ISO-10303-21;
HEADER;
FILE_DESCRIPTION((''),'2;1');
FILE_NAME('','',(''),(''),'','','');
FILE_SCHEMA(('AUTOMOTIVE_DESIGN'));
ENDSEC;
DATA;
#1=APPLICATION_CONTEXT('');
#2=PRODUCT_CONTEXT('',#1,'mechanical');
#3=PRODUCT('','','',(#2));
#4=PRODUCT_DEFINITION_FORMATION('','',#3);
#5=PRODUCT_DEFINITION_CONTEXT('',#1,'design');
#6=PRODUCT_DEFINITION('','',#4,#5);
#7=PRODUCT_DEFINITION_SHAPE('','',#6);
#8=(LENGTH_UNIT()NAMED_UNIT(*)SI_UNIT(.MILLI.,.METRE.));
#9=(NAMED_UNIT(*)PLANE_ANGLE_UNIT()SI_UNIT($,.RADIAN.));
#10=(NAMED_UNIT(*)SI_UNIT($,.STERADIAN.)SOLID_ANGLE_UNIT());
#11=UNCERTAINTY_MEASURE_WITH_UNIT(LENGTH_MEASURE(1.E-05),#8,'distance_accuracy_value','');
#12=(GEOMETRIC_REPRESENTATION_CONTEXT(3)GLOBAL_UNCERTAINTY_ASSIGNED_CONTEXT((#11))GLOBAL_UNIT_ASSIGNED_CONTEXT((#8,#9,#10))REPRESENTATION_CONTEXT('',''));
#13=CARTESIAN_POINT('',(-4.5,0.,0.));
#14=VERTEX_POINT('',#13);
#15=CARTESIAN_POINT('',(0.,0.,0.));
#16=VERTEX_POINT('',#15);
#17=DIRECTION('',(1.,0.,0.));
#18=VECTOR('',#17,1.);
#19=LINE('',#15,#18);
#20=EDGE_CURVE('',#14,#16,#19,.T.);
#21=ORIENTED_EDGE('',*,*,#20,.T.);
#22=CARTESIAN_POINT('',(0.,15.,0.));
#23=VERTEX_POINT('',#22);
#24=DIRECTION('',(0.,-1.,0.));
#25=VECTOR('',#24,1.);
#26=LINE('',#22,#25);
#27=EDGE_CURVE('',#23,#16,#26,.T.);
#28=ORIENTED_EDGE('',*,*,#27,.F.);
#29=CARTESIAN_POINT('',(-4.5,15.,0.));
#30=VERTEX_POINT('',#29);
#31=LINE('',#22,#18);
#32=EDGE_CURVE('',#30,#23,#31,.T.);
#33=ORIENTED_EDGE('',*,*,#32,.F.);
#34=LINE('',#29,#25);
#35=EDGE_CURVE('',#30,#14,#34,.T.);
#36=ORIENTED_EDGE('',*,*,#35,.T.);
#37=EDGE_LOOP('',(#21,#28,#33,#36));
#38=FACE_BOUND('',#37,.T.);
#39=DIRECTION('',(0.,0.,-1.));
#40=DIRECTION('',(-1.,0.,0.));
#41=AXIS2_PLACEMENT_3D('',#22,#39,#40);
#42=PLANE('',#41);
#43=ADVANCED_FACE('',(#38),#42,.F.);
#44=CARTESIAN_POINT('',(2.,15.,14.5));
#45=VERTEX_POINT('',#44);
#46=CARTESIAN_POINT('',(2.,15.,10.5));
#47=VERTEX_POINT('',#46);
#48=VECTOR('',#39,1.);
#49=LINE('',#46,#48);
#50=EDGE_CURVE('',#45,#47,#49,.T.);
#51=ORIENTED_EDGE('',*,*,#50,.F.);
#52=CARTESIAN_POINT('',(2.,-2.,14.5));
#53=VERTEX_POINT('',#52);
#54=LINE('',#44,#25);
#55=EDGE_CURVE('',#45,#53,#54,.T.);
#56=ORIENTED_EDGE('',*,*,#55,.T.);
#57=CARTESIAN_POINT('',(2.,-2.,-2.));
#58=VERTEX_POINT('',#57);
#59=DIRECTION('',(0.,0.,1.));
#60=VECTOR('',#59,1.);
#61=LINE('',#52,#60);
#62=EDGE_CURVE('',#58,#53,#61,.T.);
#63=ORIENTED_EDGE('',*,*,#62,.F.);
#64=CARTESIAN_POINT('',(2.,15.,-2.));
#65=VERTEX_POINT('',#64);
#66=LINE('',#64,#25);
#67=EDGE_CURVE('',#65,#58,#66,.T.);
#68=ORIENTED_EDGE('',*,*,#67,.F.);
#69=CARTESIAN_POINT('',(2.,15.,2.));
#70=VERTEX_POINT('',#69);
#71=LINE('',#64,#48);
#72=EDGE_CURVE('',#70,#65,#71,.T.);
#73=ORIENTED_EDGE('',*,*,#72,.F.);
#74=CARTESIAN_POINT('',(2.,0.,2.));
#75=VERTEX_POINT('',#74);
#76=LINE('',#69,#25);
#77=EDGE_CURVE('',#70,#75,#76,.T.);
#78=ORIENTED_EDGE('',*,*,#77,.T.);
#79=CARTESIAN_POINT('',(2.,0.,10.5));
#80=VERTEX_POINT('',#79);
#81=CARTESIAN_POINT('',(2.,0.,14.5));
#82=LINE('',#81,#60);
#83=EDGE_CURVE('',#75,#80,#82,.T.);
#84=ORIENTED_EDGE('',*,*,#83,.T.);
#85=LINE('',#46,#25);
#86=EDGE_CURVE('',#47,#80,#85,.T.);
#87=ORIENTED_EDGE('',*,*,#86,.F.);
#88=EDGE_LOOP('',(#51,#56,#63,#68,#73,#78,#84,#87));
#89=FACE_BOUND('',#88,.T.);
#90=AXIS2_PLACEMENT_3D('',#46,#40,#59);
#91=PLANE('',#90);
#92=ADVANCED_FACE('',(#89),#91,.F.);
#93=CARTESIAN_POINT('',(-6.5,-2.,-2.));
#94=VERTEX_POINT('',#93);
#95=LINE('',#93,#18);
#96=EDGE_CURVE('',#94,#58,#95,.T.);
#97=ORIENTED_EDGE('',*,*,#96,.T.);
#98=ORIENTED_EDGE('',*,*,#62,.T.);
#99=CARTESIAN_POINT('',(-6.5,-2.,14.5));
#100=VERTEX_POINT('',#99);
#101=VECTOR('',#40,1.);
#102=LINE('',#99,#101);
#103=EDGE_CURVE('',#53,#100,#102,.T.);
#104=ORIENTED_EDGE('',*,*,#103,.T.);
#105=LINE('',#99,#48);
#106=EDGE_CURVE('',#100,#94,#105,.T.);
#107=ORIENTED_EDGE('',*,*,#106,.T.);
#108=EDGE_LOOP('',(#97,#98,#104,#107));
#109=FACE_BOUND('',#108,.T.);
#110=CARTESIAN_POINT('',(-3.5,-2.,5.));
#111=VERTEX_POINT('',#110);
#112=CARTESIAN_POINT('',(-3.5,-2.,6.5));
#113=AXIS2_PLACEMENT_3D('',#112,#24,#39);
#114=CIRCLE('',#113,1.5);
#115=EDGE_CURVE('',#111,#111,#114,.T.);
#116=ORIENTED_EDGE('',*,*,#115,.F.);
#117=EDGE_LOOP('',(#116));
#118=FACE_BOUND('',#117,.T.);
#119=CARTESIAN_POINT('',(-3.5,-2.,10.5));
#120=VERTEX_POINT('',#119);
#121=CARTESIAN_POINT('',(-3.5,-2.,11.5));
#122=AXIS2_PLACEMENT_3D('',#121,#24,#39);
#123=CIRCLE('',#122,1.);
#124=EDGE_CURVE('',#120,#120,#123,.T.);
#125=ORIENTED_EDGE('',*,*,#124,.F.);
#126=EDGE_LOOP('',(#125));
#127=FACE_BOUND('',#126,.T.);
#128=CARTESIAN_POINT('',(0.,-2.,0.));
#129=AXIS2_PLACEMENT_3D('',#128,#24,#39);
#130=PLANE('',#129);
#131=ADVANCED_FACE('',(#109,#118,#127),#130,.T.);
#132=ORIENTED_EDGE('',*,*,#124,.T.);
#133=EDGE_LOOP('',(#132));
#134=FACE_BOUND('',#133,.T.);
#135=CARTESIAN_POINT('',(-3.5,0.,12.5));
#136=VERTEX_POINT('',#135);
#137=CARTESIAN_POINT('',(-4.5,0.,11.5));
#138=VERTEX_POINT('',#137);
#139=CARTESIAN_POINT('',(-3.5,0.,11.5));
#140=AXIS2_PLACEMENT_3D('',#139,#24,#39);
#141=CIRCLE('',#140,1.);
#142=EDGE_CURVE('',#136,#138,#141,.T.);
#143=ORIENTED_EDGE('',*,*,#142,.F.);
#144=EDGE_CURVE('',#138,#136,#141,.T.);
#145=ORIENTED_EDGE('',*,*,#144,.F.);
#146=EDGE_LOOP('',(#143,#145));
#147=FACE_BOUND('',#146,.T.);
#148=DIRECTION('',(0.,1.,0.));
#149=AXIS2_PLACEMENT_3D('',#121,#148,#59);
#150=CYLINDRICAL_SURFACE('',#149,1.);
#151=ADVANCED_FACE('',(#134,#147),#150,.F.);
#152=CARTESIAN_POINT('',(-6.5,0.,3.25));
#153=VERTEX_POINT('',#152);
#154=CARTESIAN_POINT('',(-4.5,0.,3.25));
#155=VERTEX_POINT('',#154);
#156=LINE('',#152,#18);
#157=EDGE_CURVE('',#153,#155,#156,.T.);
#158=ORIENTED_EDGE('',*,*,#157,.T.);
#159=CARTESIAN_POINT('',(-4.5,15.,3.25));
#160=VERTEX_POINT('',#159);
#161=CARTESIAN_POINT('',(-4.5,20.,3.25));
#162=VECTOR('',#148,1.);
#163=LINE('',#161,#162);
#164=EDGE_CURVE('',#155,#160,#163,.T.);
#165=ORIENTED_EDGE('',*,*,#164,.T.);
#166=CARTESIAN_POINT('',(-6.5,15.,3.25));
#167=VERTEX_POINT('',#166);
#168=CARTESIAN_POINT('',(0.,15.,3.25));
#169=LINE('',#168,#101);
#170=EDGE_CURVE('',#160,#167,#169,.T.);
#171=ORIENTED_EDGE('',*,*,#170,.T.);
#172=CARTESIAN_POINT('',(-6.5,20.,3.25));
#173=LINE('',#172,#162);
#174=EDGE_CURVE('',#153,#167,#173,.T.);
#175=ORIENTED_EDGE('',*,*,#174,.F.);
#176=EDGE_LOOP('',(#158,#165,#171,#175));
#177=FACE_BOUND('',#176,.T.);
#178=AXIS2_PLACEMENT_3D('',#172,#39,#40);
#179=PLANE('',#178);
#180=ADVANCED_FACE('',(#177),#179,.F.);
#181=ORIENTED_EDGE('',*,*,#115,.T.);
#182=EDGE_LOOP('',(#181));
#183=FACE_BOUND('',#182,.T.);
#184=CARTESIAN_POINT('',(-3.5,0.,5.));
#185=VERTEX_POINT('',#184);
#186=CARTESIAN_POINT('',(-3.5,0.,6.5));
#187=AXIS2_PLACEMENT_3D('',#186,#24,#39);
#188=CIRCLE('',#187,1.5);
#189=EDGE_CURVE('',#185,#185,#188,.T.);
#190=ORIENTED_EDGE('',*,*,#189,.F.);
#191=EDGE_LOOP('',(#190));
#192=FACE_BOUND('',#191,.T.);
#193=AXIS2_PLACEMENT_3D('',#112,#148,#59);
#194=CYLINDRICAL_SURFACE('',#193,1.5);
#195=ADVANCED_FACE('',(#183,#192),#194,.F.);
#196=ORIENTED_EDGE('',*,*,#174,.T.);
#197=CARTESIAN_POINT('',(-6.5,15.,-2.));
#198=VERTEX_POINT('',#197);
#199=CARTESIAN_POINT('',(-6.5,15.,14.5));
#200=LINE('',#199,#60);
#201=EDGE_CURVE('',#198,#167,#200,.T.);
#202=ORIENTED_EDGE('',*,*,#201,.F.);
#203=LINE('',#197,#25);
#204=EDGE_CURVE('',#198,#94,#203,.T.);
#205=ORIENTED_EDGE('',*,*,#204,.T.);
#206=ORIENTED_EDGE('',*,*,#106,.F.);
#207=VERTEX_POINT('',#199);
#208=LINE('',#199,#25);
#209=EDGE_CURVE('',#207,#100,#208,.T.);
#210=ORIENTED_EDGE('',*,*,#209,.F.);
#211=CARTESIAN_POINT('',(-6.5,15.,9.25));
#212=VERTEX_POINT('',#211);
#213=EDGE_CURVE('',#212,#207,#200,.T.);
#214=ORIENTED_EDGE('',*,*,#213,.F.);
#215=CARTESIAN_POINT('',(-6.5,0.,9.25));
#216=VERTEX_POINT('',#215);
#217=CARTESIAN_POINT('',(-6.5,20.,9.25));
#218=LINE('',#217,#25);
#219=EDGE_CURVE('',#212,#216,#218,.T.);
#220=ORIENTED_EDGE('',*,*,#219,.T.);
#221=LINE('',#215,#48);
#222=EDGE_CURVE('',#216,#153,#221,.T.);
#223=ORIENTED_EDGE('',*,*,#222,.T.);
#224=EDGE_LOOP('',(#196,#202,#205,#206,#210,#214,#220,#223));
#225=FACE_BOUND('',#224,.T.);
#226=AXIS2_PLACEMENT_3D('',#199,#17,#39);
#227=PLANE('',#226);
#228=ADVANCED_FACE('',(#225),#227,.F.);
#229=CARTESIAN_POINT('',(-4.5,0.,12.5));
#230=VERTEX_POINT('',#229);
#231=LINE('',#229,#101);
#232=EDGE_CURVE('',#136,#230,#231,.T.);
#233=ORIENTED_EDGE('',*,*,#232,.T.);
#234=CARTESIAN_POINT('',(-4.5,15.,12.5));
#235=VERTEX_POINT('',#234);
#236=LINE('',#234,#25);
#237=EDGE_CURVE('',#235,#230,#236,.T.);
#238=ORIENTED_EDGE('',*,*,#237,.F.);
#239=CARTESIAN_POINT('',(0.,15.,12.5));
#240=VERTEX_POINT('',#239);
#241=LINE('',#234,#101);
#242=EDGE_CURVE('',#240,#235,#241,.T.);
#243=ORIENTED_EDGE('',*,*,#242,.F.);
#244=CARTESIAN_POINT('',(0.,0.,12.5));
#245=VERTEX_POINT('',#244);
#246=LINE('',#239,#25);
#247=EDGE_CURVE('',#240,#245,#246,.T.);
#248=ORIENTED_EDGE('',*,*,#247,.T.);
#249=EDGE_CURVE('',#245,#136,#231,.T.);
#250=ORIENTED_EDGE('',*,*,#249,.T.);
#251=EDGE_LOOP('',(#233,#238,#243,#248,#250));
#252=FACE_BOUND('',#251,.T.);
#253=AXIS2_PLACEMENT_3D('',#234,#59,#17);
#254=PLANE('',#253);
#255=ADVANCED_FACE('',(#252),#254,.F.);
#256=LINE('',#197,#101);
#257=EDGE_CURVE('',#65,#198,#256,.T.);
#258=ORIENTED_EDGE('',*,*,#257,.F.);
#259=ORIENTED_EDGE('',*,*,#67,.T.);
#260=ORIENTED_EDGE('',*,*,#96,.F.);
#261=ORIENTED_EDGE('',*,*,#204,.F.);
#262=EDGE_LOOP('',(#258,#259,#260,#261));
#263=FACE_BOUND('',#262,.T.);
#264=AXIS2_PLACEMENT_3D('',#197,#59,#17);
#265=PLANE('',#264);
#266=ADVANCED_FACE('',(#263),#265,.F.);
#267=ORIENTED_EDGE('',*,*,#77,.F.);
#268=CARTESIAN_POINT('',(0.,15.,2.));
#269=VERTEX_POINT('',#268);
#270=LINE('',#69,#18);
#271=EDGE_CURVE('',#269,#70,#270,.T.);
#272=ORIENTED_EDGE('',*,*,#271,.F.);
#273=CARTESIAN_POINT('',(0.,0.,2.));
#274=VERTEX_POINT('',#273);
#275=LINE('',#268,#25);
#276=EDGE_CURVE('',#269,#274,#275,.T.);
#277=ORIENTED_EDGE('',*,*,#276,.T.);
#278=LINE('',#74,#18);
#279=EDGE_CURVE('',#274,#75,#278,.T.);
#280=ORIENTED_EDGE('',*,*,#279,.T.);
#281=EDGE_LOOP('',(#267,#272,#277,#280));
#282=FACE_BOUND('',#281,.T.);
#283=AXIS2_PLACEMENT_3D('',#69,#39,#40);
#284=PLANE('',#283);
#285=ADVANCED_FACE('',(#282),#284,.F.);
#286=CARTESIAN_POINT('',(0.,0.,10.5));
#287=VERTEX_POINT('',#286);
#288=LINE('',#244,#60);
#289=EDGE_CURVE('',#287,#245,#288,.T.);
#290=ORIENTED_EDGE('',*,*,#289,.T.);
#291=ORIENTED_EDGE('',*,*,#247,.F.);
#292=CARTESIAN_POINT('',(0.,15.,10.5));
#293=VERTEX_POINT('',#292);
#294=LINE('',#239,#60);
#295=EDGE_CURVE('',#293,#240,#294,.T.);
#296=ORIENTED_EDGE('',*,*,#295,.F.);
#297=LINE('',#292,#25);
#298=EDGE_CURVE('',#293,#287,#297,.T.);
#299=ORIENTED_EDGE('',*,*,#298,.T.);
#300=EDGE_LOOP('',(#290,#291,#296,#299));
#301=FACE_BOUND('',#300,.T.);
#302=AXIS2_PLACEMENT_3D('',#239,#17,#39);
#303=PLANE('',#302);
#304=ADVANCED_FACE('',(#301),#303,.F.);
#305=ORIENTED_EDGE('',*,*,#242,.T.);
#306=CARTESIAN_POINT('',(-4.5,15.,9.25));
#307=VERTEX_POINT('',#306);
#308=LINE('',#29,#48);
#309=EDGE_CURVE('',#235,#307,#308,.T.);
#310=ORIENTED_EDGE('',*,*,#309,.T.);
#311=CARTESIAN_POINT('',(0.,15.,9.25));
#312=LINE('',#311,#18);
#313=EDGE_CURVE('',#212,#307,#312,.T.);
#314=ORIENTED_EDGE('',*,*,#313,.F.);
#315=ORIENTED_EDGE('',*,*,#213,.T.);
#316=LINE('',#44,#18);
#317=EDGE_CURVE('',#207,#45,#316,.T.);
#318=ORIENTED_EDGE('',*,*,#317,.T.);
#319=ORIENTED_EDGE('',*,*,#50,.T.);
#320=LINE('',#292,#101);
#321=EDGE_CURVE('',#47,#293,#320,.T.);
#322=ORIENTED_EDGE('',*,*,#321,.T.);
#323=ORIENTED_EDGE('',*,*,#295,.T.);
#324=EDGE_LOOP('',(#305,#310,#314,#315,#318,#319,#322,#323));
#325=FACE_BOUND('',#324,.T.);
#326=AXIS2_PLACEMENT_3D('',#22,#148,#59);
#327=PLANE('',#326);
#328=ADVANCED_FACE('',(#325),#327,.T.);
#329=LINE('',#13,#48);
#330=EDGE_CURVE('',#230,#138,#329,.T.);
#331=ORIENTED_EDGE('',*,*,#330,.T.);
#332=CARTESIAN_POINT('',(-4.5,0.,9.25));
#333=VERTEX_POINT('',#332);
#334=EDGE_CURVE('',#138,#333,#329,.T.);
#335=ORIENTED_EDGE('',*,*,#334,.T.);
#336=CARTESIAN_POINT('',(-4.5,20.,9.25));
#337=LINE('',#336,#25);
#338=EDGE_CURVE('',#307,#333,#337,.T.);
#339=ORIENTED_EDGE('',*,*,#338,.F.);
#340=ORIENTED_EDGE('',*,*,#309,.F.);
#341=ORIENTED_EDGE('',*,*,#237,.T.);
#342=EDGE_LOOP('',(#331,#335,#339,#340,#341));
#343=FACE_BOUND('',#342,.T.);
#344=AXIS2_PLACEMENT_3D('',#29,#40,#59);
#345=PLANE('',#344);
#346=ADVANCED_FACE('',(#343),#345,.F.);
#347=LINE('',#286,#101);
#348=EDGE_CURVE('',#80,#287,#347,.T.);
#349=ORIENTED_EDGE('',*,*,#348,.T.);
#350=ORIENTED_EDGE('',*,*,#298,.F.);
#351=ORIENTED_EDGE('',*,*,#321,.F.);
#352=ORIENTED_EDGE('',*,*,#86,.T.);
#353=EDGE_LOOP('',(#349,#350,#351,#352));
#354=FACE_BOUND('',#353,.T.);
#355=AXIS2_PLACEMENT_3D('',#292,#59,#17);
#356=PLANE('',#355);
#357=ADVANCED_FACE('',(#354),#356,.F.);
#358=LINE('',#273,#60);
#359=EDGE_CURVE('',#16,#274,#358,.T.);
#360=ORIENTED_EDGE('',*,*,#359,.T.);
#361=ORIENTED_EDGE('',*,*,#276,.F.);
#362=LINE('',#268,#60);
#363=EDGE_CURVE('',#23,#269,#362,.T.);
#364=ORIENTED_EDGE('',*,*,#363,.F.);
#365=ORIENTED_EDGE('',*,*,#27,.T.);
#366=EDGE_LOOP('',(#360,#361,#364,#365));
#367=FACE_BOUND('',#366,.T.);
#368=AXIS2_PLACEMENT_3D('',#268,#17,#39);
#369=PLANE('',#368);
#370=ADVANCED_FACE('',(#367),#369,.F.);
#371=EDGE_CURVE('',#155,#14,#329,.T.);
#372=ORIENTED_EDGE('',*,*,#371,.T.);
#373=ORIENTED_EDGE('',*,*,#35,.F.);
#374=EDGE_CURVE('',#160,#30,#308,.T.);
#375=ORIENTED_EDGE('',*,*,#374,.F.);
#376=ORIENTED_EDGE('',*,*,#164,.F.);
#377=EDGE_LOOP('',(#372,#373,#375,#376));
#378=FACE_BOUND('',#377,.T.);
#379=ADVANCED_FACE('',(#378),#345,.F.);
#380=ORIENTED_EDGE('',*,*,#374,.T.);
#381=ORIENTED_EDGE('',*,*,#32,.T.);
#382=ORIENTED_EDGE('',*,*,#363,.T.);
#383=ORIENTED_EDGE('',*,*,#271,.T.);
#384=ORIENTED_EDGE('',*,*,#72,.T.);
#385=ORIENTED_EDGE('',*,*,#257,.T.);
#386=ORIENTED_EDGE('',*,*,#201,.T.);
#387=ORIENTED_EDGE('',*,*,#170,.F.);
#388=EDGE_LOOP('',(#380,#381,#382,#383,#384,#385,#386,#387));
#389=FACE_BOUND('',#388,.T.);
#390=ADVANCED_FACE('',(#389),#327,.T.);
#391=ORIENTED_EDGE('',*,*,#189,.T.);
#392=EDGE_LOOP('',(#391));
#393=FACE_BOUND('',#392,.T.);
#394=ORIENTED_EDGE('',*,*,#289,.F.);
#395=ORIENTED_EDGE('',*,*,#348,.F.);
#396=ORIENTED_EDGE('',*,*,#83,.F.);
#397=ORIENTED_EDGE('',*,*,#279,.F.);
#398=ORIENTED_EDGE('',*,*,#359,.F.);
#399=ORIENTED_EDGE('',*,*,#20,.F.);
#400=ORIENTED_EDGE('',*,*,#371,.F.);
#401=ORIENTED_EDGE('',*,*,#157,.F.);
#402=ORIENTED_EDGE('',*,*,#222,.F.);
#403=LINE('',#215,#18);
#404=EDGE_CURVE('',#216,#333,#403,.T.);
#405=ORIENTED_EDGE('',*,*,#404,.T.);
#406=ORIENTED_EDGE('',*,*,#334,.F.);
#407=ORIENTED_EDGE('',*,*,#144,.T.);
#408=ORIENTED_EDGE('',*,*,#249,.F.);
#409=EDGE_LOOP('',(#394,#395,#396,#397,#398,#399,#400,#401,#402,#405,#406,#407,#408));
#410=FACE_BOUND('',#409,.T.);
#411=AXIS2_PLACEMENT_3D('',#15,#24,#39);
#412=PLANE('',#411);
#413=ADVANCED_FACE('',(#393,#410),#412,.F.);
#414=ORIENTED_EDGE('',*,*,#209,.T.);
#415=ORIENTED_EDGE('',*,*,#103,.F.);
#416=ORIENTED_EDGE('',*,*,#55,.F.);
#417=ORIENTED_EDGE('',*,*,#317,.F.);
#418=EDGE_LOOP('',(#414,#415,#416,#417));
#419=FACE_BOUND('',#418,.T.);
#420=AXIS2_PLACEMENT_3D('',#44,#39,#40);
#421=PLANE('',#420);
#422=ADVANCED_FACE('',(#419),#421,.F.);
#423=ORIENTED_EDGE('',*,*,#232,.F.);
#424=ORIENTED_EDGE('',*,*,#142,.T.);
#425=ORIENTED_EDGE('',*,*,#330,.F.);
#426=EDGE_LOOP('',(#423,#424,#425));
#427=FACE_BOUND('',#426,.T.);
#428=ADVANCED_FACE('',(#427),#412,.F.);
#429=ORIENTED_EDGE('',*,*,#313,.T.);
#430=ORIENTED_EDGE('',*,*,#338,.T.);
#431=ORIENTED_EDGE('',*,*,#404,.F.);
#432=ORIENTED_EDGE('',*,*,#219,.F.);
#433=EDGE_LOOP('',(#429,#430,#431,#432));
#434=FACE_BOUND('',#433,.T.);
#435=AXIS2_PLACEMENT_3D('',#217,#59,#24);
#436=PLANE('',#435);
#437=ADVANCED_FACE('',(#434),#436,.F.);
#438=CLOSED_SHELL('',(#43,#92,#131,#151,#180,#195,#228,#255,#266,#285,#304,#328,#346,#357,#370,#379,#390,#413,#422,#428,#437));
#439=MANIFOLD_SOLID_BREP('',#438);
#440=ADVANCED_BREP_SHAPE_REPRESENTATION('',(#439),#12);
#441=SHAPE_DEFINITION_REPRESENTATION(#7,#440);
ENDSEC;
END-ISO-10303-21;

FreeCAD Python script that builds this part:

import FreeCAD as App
import Part
import Sketcher


def add_polygon(sketch, points):
    """Adds a closed chain of lines whose ends are joined by coincident constraints."""
    first, n = sketch.GeometryCount, len(points)
    for a, b in zip(points, points[1:] + points[:1]):
        sketch.addGeometry(Part.LineSegment(App.Vector(*a, 0), App.Vector(*b, 0)), False)
    for i in range(n):
        sketch.addConstraint(Sketcher.Constraint("Coincident", first + i, 2, first + (i + 1) % n, 1))

doc = App.newDocument("Part")
body = doc.addObject("PartDesign::Body", "Body")

sketch1 = doc.addObject("Sketcher::SketchObject", "Sketch")
body.addObject(sketch1)
sketch1.AttachmentSupport = (doc.XZ_Plane, [""])
sketch1.MapMode = "FlatFace"
add_polygon(sketch1, [(-4.5, 0), (0, 0), (0, 2), (2, 2), (2, -2), (-6.5, -2), (-6.5, 14.5), (2, 14.5), (2, 10.5), (0, 10.5), (0, 12.5), (-4.5, 12.5)])
sketch1.addConstraint([
    Sketcher.Constraint("Horizontal", 0),
    Sketcher.Constraint("Vertical", 1),
    Sketcher.Constraint("Horizontal", 2),
    Sketcher.Constraint("Vertical", 3),
    Sketcher.Constraint("Horizontal", 4),
    Sketcher.Constraint("Vertical", 5),
    Sketcher.Constraint("Horizontal", 6),
    Sketcher.Constraint("Vertical", 7),
    Sketcher.Constraint("Horizontal", 8),
    Sketcher.Constraint("Vertical", 9),
    Sketcher.Constraint("Horizontal", 10),
    Sketcher.Constraint("Vertical", 11),
    Sketcher.Constraint("Coincident", 0, 2, -1, 1),
    Sketcher.Constraint("PointOnObject", 8, 2, -2),
    Sketcher.Constraint("Vertical", 3, 2, 6, 2),
    Sketcher.Constraint("Equal", 8, 1),
    Sketcher.Constraint("Equal", 3, 7),
    Sketcher.Constraint("Equal", 1, 9),
    Sketcher.Constraint("DistanceX", 2, 1, 2, 2, 2.0),
    Sketcher.Constraint("DistanceY", 3, 2, 3, 1, 4.0),
    Sketcher.Constraint("DistanceX", 0, 1, 0, 2, 4.5),
    Sketcher.Constraint("DistanceX", 4, 2, 4, 1, 8.5),
    Sketcher.Constraint("DistanceY", 5, 1, 5, 2, 16.5),
])
pad1 = doc.addObject("PartDesign::Pad", "Pad")
body.addObject(pad1)
pad1.Profile = sketch1
pad1.Length = 15
pad1.Reversed = True

sketch2 = doc.addObject("Sketcher::SketchObject", "Sketch001")
body.addObject(sketch2)
sketch2.AttachmentSupport = (doc.XZ_Plane, [""])
sketch2.MapMode = "FlatFace"
add_polygon(sketch2, [(-6.5, 14.5), (-6.5, -2), (2, -2), (2, 14.5)])
sketch2.addGeometry(Part.Circle(App.Vector(-3.5, 6.5, 0), App.Vector(0, 0, 1), 1.5), False)
sketch2.addGeometry(Part.Circle(App.Vector(-3.5, 11.5, 0), App.Vector(0, 0, 1), 1), False)
sketch2.addConstraint([
    Sketcher.Constraint("Vertical", 0),
    Sketcher.Constraint("Horizontal", 1),
    Sketcher.Constraint("Vertical", 2),
    Sketcher.Constraint("Horizontal", 3),
    Sketcher.Constraint("Vertical", 4, 3, 5, 3),
    Sketcher.Constraint("Diameter", 4, 3.0),
    Sketcher.Constraint("Diameter", 5, 2.0),
    Sketcher.Constraint("DistanceX", 1, 1, 1, 2, 8.5),
    Sketcher.Constraint("DistanceY", 0, 2, 0, 1, 16.5),
    Sketcher.Constraint("DistanceY", 0, 2, -1, 1, 2.0),
    Sketcher.Constraint("DistanceX", -1, 1, 1, 2, 2.0),
    Sketcher.Constraint("DistanceY", 4, 3, 5, 3, 5.0),
    Sketcher.Constraint("DistanceX", 0, 2, 4, 3, 3.0),
    Sketcher.Constraint("DistanceY", 5, 3, 2, 2, 3.0),
])
pad2 = doc.addObject("PartDesign::Pad", "Pad001")
body.addObject(pad2)
pad2.Profile = sketch2
pad2.Length = 2

sketch3 = doc.addObject("Sketcher::SketchObject", "Sketch002")
body.addObject(sketch3)
sketch3.AttachmentSupport = (doc.YZ_Plane, [""])
sketch3.MapMode = "FlatFace"
sketch3.AttachmentOffset = App.Placement(App.Vector(0, 0, -4.5), App.Rotation())
add_polygon(sketch3, [(20, 9), (0, 9), (0, 3), (20, 3)])
sketch3.addConstraint([
    Sketcher.Constraint("Horizontal", 0),
    Sketcher.Constraint("Vertical", 1),
    Sketcher.Constraint("Horizontal", 2),
    Sketcher.Constraint("Vertical", 3),
    Sketcher.Constraint("PointOnObject", 0, 2, -2),
    Sketcher.Constraint("DistanceX", 0, 2, 0, 1, 20.0),
    Sketcher.Constraint("DistanceY", 1, 2, 1, 1, 6.0),
    Sketcher.Constraint("DistanceY", -1, 1, 0, 2, 9.25),
])
pocket1 = doc.addObject("PartDesign::Pocket", "Pocket")
body.addObject(pocket1)
pocket1.Profile = sketch3
pocket1.Length = 2

doc.recompute()
